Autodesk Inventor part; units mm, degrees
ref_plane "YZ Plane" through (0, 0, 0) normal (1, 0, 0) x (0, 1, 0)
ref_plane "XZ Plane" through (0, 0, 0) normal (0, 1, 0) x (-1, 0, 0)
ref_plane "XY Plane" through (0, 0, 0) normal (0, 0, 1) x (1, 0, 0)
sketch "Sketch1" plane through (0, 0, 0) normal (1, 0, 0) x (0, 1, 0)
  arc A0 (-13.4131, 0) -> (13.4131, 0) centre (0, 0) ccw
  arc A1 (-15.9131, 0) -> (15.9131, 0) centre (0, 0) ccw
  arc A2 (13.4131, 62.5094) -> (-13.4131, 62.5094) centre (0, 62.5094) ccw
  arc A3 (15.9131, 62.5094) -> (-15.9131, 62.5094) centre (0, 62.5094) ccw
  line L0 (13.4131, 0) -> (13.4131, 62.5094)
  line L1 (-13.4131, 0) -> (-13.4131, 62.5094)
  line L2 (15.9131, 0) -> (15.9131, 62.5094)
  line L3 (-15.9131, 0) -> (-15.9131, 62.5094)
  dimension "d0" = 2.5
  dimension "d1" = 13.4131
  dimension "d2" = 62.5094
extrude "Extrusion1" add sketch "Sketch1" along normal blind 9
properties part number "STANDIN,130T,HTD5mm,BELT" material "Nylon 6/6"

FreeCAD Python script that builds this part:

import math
import FreeCAD as App
import Part
import Sketcher

V = App.Vector
Q = App.Units.Quantity

doc = App.newDocument("Part")
body = doc.addObject("PartDesign::Body", "Body")

# Sketch on YZ plane
sketch1 = doc.addObject("Sketcher::SketchObject", "Sketch")
body.addObject(sketch1)
sketch1.AttachmentSupport = (doc.YZ_Plane, [""])
sketch1.MapMode = "FlatFace"
sketch1.addGeometry(Part.LineSegment(V(-16, 63, 0), V(-16, 0, 0)), False)
sketch1.addGeometry(Part.ArcOfCircle(Part.Circle(V(0, 0, 0), V(0, 0, 1), 16), math.radians(180), math.radians(360)), False)
sketch1.addGeometry(Part.LineSegment(V(16, 0, 0), V(16, 63, 0)), False)
sketch1.addGeometry(Part.ArcOfCircle(Part.Circle(V(0, 63, 0), V(0, 0, 1), 16), math.radians(0), math.radians(180)), False)
sketch1.addGeometry(Part.ArcOfCircle(Part.Circle(V(0, 0, 0), V(0, 0, 1), 13), math.radians(180), math.radians(360)), False)
sketch1.addGeometry(Part.LineSegment(V(-13, 0, 0), V(-13, 63, 0)), False)
sketch1.addGeometry(Part.ArcOfCircle(Part.Circle(V(0, 63, 0), V(0, 0, 1), 13), math.radians(0), math.radians(180)), False)
sketch1.addGeometry(Part.LineSegment(V(13, 63, 0), V(13, 0, 0)), False)
sketch1.addConstraint(Sketcher.Constraint("Tangent", 0, 2, 1, 1))
sketch1.addConstraint(Sketcher.Constraint("Tangent", 1, 2, 2, 1))
sketch1.addConstraint(Sketcher.Constraint("Tangent", 2, 2, 3, 1))
sketch1.addConstraint(Sketcher.Constraint("Tangent", 3, 2, 0, 1))
sketch1.addConstraint(Sketcher.Constraint("Tangent", 4, 1, 5, 1))
sketch1.addConstraint(Sketcher.Constraint("Tangent", 5, 2, 6, 2))
sketch1.addConstraint(Sketcher.Constraint("Tangent", 6, 1, 7, 1))
sketch1.addConstraint(Sketcher.Constraint("Tangent", 7, 2, 4, 2))
sketch1.addConstraint(Sketcher.Constraint("Vertical", 0))
sketch1.addConstraint(Sketcher.Constraint("Vertical", 2))
sketch1.addConstraint(Sketcher.Constraint("Vertical", 5))
sketch1.addConstraint(Sketcher.Constraint("Vertical", 7))
sketch1.addConstraint(Sketcher.Constraint("Coincident", 1, 3, -1, 1))
sketch1.addConstraint(Sketcher.Constraint("Coincident", 4, 3, -1, 1))
sketch1.addConstraint(Sketcher.Constraint("Horizontal", 6, 3, 2, 2))
sketch1.addConstraint(Sketcher.Constraint("DistanceY", 0, 2, 0, 1, Q("2.461 in")))
sketch1.addConstraint(Sketcher.Constraint("Radius", 4, 13.413))
sketch1.addConstraint(Sketcher.Constraint("Radius", 1, Q("0.6265 in")))
pad1 = doc.addObject("PartDesign::Pad", "Pad")
body.addObject(pad1)
pad1.Profile = sketch1
pad1.Length = 9

doc.recompute()
